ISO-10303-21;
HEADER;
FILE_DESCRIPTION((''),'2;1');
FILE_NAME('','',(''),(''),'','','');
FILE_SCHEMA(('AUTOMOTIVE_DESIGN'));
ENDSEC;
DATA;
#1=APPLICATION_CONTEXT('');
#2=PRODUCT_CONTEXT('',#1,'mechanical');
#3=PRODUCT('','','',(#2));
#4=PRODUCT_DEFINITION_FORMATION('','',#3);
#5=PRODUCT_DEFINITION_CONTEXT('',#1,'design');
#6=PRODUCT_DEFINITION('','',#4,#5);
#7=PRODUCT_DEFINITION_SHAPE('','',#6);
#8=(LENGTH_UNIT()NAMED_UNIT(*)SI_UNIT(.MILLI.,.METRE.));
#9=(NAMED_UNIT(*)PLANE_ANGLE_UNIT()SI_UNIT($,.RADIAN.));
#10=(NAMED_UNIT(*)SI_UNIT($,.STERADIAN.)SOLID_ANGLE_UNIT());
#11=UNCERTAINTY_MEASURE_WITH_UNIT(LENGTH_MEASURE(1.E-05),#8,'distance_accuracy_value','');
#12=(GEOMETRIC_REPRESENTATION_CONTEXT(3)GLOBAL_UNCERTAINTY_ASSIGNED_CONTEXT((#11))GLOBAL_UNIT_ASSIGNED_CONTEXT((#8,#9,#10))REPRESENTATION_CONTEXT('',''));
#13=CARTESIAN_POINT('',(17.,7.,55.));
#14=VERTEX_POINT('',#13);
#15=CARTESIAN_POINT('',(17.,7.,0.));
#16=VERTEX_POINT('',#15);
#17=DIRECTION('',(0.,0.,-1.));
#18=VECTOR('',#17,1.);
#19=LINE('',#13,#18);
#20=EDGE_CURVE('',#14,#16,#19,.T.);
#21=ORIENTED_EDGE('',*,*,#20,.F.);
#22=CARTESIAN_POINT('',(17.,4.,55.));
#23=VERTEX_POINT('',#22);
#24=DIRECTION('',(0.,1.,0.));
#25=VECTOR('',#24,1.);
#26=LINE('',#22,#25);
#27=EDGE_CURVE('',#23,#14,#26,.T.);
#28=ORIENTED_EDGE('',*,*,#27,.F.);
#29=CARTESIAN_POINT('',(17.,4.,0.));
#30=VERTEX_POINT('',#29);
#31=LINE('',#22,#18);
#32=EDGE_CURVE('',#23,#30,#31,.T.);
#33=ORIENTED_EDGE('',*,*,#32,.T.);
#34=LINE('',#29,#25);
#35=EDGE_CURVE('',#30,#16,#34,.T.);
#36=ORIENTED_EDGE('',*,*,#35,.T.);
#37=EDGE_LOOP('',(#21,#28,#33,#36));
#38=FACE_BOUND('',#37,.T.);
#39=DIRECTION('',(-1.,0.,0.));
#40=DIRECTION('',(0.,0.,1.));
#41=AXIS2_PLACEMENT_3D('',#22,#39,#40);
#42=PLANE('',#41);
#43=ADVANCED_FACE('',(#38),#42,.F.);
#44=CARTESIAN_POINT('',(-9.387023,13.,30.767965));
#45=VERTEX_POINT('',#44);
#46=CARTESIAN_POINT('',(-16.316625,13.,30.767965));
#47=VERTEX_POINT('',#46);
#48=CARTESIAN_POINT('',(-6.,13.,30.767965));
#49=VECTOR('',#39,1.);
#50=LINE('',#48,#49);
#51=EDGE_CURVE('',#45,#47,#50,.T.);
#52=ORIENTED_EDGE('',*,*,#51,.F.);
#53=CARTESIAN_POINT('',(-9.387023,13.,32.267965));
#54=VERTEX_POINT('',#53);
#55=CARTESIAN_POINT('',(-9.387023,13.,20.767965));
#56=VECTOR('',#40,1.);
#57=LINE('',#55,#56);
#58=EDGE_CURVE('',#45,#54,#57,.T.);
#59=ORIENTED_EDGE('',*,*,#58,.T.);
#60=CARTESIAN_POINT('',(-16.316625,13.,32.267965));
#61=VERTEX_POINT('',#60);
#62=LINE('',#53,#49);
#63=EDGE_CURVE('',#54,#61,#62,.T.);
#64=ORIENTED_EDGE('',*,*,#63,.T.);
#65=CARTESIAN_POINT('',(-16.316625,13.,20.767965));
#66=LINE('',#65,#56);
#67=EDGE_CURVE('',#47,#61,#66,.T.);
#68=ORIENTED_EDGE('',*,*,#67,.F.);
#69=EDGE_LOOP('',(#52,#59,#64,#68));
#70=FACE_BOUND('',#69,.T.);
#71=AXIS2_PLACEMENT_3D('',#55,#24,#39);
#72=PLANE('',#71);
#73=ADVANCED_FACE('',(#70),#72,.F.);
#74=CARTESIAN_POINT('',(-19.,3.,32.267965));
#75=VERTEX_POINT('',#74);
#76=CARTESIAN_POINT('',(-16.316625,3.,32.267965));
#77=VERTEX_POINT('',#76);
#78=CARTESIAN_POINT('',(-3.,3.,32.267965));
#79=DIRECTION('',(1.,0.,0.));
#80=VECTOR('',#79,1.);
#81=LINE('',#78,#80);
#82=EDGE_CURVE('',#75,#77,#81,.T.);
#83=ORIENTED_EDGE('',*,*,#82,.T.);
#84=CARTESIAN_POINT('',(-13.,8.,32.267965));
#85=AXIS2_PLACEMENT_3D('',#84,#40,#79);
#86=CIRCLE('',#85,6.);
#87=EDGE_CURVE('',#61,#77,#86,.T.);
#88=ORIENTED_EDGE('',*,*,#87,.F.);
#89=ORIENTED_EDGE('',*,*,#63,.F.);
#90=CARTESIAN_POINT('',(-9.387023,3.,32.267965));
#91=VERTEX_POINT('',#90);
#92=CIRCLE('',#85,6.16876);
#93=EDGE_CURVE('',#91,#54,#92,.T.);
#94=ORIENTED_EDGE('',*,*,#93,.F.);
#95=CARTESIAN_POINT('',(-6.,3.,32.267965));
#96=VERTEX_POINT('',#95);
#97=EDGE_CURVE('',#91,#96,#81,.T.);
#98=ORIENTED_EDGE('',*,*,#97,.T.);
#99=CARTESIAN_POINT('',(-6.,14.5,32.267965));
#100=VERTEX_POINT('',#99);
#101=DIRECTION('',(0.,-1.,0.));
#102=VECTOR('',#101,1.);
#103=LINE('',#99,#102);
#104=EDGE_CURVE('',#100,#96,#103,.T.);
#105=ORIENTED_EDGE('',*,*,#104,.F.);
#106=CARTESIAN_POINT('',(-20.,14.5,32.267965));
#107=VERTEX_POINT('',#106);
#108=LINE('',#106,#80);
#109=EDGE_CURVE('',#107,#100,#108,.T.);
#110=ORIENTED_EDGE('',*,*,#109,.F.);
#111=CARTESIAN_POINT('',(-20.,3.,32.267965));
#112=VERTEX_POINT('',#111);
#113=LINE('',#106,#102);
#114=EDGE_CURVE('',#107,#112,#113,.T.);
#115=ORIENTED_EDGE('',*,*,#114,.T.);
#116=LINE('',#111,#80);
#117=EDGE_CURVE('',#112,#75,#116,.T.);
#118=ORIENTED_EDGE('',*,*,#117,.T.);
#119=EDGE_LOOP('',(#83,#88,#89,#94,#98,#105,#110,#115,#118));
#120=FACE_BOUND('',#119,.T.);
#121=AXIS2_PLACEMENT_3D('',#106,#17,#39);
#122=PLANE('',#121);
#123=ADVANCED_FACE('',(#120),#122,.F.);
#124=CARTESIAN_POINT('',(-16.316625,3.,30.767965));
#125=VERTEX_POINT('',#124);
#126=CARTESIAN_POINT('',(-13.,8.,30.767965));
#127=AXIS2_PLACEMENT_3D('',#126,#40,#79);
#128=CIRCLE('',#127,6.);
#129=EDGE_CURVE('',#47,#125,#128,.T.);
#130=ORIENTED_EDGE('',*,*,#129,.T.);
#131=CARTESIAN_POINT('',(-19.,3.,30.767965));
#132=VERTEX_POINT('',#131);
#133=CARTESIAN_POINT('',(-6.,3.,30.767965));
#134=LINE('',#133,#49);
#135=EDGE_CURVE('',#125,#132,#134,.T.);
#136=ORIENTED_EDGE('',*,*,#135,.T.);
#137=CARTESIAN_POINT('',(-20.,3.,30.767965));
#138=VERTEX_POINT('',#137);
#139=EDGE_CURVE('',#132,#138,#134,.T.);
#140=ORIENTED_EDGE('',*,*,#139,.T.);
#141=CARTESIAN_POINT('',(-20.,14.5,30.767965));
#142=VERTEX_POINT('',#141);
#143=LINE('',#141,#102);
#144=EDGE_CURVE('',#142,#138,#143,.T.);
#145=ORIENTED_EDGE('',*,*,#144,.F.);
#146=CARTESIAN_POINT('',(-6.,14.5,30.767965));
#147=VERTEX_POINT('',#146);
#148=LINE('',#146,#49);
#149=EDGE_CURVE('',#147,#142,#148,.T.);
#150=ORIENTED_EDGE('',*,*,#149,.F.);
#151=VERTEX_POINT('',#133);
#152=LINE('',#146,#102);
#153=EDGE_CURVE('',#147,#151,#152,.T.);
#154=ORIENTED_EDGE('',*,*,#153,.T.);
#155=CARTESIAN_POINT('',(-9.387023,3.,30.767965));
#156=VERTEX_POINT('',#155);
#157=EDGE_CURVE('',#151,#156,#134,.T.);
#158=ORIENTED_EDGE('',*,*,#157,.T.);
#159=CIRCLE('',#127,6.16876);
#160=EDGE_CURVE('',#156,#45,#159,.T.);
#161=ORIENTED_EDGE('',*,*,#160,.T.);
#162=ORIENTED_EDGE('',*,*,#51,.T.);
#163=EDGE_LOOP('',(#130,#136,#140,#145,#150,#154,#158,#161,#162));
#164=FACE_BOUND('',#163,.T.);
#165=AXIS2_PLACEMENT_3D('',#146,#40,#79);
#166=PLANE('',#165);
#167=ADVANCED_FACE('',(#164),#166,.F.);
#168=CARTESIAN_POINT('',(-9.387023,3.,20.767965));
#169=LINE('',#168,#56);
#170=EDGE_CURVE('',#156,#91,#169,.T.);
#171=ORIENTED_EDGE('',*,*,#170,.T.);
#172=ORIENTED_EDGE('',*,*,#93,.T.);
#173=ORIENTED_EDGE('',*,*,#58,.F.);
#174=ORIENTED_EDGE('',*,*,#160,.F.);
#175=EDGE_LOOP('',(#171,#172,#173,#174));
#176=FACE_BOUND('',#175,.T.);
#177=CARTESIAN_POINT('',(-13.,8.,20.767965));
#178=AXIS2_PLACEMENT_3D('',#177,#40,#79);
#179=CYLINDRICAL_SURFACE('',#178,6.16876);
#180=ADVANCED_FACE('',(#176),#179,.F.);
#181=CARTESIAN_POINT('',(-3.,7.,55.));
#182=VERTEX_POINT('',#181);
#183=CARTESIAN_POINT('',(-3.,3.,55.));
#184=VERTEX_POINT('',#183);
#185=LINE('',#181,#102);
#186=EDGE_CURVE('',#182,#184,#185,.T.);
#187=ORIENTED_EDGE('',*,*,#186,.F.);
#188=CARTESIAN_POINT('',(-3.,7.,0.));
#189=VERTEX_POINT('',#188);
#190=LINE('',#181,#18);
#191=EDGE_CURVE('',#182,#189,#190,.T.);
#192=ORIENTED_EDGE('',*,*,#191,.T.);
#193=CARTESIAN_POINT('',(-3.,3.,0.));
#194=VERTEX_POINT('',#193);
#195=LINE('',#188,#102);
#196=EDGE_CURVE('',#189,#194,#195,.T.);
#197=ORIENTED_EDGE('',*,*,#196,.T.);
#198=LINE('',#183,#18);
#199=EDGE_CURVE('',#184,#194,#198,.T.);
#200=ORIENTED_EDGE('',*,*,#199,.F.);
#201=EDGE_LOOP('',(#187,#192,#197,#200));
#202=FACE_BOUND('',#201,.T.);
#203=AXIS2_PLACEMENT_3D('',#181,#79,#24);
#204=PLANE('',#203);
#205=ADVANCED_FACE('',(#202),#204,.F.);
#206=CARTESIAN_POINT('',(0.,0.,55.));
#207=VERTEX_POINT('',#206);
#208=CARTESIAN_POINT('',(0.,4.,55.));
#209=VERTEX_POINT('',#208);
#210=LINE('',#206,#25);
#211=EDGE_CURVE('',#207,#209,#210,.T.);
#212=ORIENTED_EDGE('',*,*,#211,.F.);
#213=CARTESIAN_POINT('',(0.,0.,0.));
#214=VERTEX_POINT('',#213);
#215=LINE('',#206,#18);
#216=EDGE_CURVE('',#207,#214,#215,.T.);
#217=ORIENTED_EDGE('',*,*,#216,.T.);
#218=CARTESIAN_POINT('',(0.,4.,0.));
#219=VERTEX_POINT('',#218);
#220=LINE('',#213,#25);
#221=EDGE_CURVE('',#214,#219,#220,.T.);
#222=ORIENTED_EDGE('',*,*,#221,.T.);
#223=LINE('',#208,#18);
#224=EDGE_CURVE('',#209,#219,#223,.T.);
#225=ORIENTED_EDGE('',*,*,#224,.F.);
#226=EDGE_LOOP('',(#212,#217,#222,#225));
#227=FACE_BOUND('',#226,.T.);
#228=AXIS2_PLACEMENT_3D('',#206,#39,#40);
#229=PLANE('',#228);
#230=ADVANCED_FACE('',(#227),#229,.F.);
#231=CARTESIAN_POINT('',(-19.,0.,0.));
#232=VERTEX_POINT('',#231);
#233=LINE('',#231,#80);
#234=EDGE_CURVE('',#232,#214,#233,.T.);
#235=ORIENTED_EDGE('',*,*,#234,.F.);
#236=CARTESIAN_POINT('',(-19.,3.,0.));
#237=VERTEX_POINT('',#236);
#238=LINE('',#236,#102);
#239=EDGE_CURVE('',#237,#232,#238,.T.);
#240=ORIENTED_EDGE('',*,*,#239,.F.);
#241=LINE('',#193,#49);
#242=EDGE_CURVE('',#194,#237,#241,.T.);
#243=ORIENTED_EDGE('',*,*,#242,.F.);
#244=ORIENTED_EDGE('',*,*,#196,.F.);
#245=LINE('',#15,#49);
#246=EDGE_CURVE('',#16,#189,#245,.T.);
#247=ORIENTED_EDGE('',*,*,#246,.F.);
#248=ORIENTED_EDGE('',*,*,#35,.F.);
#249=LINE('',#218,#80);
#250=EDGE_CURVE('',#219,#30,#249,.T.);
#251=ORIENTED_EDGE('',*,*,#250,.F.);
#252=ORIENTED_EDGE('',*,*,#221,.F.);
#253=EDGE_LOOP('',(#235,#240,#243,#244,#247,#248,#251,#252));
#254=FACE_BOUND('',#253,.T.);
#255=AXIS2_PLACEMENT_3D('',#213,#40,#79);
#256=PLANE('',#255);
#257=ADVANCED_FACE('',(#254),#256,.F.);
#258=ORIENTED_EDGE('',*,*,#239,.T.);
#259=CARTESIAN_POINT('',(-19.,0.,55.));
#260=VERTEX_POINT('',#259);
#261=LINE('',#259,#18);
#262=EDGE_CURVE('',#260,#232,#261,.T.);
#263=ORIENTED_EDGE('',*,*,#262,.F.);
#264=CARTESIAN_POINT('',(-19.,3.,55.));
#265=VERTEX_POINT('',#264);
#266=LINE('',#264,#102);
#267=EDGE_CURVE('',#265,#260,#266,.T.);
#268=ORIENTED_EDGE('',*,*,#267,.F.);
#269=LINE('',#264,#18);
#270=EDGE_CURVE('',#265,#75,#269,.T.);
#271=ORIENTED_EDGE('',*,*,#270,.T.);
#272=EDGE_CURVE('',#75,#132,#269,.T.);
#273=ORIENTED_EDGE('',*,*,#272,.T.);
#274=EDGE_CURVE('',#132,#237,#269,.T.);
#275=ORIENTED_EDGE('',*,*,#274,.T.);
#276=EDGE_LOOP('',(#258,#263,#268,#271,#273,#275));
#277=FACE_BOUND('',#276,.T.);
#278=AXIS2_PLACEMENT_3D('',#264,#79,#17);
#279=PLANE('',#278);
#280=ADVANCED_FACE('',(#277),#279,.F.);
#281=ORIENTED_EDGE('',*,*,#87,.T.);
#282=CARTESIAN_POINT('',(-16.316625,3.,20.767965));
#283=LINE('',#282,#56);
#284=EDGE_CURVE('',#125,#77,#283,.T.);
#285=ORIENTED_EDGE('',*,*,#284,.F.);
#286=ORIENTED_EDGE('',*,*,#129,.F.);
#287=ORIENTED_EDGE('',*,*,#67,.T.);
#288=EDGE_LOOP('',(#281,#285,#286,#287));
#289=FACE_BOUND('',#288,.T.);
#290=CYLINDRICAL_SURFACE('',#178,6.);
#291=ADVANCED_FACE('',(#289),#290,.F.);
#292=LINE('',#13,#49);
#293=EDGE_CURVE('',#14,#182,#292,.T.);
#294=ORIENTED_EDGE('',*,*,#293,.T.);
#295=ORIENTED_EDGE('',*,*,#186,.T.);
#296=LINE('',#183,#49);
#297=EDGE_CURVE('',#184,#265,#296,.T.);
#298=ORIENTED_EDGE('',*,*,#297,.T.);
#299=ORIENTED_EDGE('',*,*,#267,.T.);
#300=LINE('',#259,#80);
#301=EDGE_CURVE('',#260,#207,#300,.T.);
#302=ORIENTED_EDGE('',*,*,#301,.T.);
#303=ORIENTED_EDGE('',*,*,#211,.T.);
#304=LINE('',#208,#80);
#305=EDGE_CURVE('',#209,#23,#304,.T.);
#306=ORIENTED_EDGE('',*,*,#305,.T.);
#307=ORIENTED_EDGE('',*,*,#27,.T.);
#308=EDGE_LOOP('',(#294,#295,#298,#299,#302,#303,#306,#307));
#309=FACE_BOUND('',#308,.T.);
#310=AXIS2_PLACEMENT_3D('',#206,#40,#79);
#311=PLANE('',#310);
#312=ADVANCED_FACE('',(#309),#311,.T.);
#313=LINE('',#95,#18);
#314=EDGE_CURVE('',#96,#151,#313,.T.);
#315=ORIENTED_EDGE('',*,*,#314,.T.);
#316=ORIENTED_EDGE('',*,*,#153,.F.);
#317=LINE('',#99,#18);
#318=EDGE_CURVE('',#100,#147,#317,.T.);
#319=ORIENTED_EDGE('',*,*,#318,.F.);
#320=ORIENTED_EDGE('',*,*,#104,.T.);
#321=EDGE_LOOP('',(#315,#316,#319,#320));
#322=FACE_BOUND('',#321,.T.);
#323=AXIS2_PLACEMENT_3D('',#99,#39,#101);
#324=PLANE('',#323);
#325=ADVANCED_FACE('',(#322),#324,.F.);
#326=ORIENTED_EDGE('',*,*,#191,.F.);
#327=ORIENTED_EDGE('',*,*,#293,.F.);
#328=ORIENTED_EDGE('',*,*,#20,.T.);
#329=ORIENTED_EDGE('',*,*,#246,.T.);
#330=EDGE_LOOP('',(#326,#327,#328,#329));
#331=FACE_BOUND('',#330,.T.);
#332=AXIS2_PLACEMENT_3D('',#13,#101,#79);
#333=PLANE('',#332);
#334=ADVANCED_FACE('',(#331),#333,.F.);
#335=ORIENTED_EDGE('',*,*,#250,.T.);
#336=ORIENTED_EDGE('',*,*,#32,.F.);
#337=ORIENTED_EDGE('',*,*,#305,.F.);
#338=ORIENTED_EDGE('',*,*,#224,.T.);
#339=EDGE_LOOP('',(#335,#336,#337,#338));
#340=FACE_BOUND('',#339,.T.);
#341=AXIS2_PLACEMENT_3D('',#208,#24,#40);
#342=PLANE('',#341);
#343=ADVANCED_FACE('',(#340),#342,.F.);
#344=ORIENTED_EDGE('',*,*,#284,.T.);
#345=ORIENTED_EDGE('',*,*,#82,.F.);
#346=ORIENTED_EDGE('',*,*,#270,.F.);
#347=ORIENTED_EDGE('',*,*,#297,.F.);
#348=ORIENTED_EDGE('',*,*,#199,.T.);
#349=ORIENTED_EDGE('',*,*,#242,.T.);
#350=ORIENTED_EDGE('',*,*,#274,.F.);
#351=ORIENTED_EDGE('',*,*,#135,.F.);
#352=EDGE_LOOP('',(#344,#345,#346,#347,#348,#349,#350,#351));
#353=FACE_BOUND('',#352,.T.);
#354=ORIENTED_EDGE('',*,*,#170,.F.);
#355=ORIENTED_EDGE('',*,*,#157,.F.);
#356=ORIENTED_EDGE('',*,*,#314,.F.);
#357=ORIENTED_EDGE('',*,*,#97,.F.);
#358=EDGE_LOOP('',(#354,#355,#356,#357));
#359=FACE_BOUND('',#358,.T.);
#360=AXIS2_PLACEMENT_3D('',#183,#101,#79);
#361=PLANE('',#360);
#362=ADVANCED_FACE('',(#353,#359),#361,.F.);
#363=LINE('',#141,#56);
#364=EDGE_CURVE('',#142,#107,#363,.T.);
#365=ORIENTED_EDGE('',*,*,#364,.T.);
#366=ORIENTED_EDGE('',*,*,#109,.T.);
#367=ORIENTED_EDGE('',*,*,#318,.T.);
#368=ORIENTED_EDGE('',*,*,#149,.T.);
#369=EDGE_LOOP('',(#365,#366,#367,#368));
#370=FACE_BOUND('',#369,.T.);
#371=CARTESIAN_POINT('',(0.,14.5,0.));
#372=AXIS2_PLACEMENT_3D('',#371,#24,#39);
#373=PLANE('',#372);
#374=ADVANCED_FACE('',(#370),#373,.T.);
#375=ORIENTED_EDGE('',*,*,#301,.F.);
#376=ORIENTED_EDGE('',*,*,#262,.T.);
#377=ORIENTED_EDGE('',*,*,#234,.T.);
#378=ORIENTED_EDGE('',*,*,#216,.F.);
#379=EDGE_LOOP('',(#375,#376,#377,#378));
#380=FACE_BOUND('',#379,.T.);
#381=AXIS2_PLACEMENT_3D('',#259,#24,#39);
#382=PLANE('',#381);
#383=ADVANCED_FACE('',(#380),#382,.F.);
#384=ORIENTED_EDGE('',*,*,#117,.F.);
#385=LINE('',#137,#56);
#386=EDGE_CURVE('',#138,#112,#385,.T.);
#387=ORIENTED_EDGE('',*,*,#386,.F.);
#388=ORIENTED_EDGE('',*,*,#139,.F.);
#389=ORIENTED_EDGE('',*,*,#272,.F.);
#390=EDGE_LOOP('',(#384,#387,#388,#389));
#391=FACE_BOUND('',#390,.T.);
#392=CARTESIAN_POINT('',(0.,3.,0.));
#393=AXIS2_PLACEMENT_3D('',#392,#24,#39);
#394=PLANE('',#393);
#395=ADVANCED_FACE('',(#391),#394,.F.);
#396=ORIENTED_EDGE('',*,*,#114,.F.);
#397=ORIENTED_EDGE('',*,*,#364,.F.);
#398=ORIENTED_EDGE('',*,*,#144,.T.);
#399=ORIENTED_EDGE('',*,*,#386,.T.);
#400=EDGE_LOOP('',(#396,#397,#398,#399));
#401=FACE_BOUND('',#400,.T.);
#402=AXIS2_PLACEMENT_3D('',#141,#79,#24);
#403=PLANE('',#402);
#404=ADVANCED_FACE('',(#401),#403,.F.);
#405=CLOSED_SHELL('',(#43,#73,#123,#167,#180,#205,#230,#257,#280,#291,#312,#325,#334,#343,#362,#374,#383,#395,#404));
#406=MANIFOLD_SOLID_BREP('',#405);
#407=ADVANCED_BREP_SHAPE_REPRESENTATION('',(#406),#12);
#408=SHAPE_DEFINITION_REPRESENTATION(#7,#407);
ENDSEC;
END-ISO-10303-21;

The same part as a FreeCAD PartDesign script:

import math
import FreeCAD as App
import Part
import Sketcher

doc = App.newDocument("Part")
body = doc.addObject("PartDesign::Body", "Body")

# Sketch on XY plane
sketch1 = body.newObject("Sketcher::SketchObject", "Sketch")
sketch1.AttachmentSupport = (doc.getObject("XY_Plane"), [""])
sketch1.MapMode = "FlatFace"
sketch1.addGeometry(Part.LineSegment(App.Vector(-19, 0, 0), App.Vector(0, 0, 0)), False)
sketch1.addGeometry(Part.LineSegment(App.Vector(0, 0, 0), App.Vector(0, 4, 0)), False)
sketch1.addGeometry(Part.LineSegment(App.Vector(0, 4, 0), App.Vector(17, 4, 0)), False)
sketch1.addGeometry(Part.LineSegment(App.Vector(17, 4, 0), App.Vector(17, 7, 0)), False)
sketch1.addGeometry(Part.LineSegment(App.Vector(17, 7, 0), App.Vector(-3, 7, 0)), False)
sketch1.addGeometry(Part.LineSegment(App.Vector(-3, 7, 0), App.Vector(-3, 3, 0)), False)
sketch1.addGeometry(Part.LineSegment(App.Vector(-3, 3, 0), App.Vector(-19, 3, 0)), False)
sketch1.addGeometry(Part.LineSegment(App.Vector(-19, 3, 0), App.Vector(-19, 0, 0)), False)
sketch1.addConstraint(Sketcher.Constraint("Coincident", 0, 2, 1, 1))
sketch1.addConstraint(Sketcher.Constraint("Coincident", 1, 2, 2, 1))
sketch1.addConstraint(Sketcher.Constraint("Coincident", 2, 2, 3, 1))
sketch1.addConstraint(Sketcher.Constraint("Coincident", 3, 2, 4, 1))
sketch1.addConstraint(Sketcher.Constraint("Coincident", 4, 2, 5, 1))
sketch1.addConstraint(Sketcher.Constraint("Coincident", 5, 2, 6, 1))
sketch1.addConstraint(Sketcher.Constraint("Coincident", 6, 2, 7, 1))
sketch1.addConstraint(Sketcher.Constraint("Coincident", 7, 2, 0, 1))
sketch1.addConstraint(Sketcher.Constraint("Horizontal", 0))
sketch1.addConstraint(Sketcher.Constraint("Vertical", 1))
sketch1.addConstraint(Sketcher.Constraint("Horizontal", 2))
sketch1.addConstraint(Sketcher.Constraint("Vertical", 3))
sketch1.addConstraint(Sketcher.Constraint("Horizontal", 4))
sketch1.addConstraint(Sketcher.Constraint("Vertical", 5))
sketch1.addConstraint(Sketcher.Constraint("Horizontal", 6))
sketch1.addConstraint(Sketcher.Constraint("Vertical", 7))
sketch1.addConstraint(Sketcher.Constraint("Coincident", 0, 2, -1, 1))
sketch1.addConstraint(Sketcher.Constraint("Equal", 1, 5))
sketch1.addConstraint(Sketcher.Constraint("DistanceX", 0, 1, 0, 2, 19.0))
sketch1.addConstraint(Sketcher.Constraint("DistanceX", 2, 1, 2, 2, 17.0))
sketch1.addConstraint(Sketcher.Constraint("DistanceX", 4, 2, 4, 1, 20.0))
sketch1.addConstraint(Sketcher.Constraint("DistanceY", 1, 1, 1, 2, 4.0))
sketch1.addConstraint(Sketcher.Constraint("DistanceY", 3, 1, 3, 2, 3.0))
pad1 = body.newObject("PartDesign::Pad", "Pad")
pad1.Profile = sketch1
pad1.Length = 55

# Sketch on XZ plane
sketch2 = body.newObject("Sketcher::SketchObject", "Sketch001")
sketch2.AttachmentSupport = (doc.getObject("XZ_Plane"), [""])
sketch2.MapMode = "FlatFace"
sketch2.AttachmentOffset = App.Placement(App.Vector(0, 0, -3), App.Rotation())
sketch2.addGeometry(Part.LineSegment(App.Vector(-20, 30.8, 0), App.Vector(-20, 32.3, 0)), False)
sketch2.addGeometry(Part.LineSegment(App.Vector(-20, 32.3, 0), App.Vector(-6, 32.3, 0)), False)
sketch2.addGeometry(Part.LineSegment(App.Vector(-6, 32.3, 0), App.Vector(-6, 30.8, 0)), False)
sketch2.addGeometry(Part.LineSegment(App.Vector(-6, 30.8, 0), App.Vector(-20, 30.8, 0)), False)
sketch2.addConstraint(Sketcher.Constraint("Coincident", 0, 2, 1, 1))
sketch2.addConstraint(Sketcher.Constraint("Coincident", 1, 2, 2, 1))
sketch2.addConstraint(Sketcher.Constraint("Coincident", 2, 2, 3, 1))
sketch2.addConstraint(Sketcher.Constraint("Coincident", 3, 2, 0, 1))
sketch2.addConstraint(Sketcher.Constraint("Vertical", 0))
sketch2.addConstraint(Sketcher.Constraint("Horizontal", 1))
sketch2.addConstraint(Sketcher.Constraint("Vertical", 2))
sketch2.addConstraint(Sketcher.Constraint("Horizontal", 3))
sketch2.addConstraint(Sketcher.Constraint("DistanceX", 1, 1, 1, 2, 14.0))
sketch2.addConstraint(Sketcher.Constraint("DistanceY", 0, 1, 0, 2, 1.5))
sketch2.addConstraint(Sketcher.Constraint("DistanceX", 0, 2, -1, 1, 20.0))
sketch2.addConstraint(Sketcher.Constraint("DistanceY", -1, 1, 0, 2, 32.267965))
pad2 = body.newObject("PartDesign::Pad", "Pad001")
pad2.Profile = sketch2
pad2.Length = 11.5
pad2.Reversed = True

# Sketch on XY plane
sketch3 = body.newObject("Sketcher::SketchObject", "Sketch002")
sketch3.AttachmentSupport = (doc.getObject("XY_Plane"), [""])
sketch3.MapMode = "FlatFace"
sketch3.AttachmentOffset = App.Placement(App.Vector(0, 0, 32.267965), App.Rotation())
sketch3.addGeometry(Part.LineSegment(App.Vector(-16, 3, 0), App.Vector(-9, 3, 0)), False)
sketch3.addGeometry(Part.ArcOfCircle(Part.Circle(App.Vector(-13, 8, 0), App.Vector(0, 0, 1), 6), math.radians(-54), math.radians(54)), False)
sketch3.addGeometry(Part.LineSegment(App.Vector(-9, 13, 0), App.Vector(-16, 13, 0)), False)
sketch3.addGeometry(Part.ArcOfCircle(Part.Circle(App.Vector(-13, 8, 0), App.Vector(0, 0, 1), 6), math.radians(124), math.radians(236)), False)
sketch3.addConstraint(Sketcher.Constraint("Coincident", 0, 2, 1, 1))
sketch3.addConstraint(Sketcher.Constraint("Coincident", 1, 2, 2, 1))
sketch3.addConstraint(Sketcher.Constraint("Coincident", 2, 2, 3, 1))
sketch3.addConstraint(Sketcher.Constraint("Coincident", 3, 2, 0, 1))
sketch3.addConstraint(Sketcher.Constraint("Horizontal", 0))
sketch3.addConstraint(Sketcher.Constraint("Horizontal", 2))
sketch3.addConstraint(Sketcher.Constraint("Coincident", 3, 3, 1, 3))
sketch3.addConstraint(Sketcher.Constraint("Vertical", 0, 2, 1, 2))
sketch3.addConstraint(Sketcher.Constraint("Radius", 3, 6.0))
sketch3.addConstraint(Sketcher.Constraint("DistanceX", 1, 3, -1, 1, 13.0))
sketch3.addConstraint(Sketcher.Constraint("DistanceY", -1, 1, 1, 3, 8.0))
sketch3.addConstraint(Sketcher.Constraint("DistanceY", -1, 1, 0, 2, 3.0))
sketch3.addConstraint(Sketcher.Constraint("Radius", 1, 6.16876))
pocket1 = body.newObject("PartDesign::Pocket", "Pocket")
pocket1.Profile = sketch3
pocket1.Length = 11.5

doc.recompute()
